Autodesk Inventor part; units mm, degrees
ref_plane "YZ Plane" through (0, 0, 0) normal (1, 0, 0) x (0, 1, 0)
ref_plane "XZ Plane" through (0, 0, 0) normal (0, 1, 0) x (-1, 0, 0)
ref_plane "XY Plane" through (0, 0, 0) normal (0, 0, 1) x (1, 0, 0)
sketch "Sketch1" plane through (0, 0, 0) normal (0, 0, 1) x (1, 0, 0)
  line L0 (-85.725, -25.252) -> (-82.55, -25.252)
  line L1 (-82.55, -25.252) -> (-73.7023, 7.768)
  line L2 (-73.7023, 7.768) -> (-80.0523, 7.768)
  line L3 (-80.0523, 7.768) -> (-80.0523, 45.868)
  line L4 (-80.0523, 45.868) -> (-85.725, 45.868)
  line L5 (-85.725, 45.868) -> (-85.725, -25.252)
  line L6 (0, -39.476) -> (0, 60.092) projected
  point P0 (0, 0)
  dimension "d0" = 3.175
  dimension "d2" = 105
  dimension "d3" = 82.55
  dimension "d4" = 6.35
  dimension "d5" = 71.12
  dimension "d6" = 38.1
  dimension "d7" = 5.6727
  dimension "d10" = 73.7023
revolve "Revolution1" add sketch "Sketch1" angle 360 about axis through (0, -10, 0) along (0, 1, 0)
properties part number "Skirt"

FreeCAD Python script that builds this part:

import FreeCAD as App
import Part
import Sketcher
from FreeCAD import Vector
Q = App.Units.Quantity


def add_polygon(sketch, points):
    """Adds a closed chain of lines whose ends are joined by coincident constraints."""
    first, n = sketch.GeometryCount, len(points)
    for a, b in zip(points, points[1:] + points[:1]):
        sketch.addGeometry(Part.LineSegment(App.Vector(*a, 0), App.Vector(*b, 0)), False)
    for i in range(n):
        sketch.addConstraint(Sketcher.Constraint("Coincident", first + i, 2, first + (i + 1) % n, 1))

doc = App.newDocument("Part")
body = doc.addObject("PartDesign::Body", "Body")

sketch1 = body.newObject("Sketcher::SketchObject", "Sketch")
sketch1.AttachmentSupport = (doc.getObject("XY_Plane"), [""])
sketch1.MapMode = "FlatFace"
add_polygon(sketch1, [(-85.7, 45.9), (-85.7, -25.3), (-82.5, -25.3), (-73.7, 7.8), (-80.1, 7.8), (-80.1, 45.9)])
sketch1.addConstraint(Sketcher.Constraint("Vertical", 0))
sketch1.addConstraint(Sketcher.Constraint("Horizontal", 1))
sketch1.addConstraint(Sketcher.Constraint("Horizontal", 3))
sketch1.addConstraint(Sketcher.Constraint("Vertical", 4))
sketch1.addConstraint(Sketcher.Constraint("Horizontal", 5))
sketch1.addConstraint(Sketcher.Constraint("DistanceY", 0, 2, 0, 1, Q("2.8 in")))
sketch1.addConstraint(Sketcher.Constraint("DistanceY", 4, 1, 4, 2, Q("1.5 in")))
sketch1.addConstraint(Sketcher.Constraint("DistanceX", 3, 2, 3, 1, Q("0.25 in")))
sketch1.addConstraint(Sketcher.Constraint("DistanceX", 1, 1, 1, 2, Q("0.125 in")))
sketch1.addConstraint(Sketcher.Constraint("DistanceX", 1, 2, -1, 1, Q("3.25 in")))
sketch1.addConstraint(Sketcher.Constraint("Angle", 2, Q("75 deg")))
sketch1.addConstraint(Sketcher.Constraint("DistanceY", 0, 2, -1, 1, 25.252))
revolution = body.newObject("PartDesign::Revolution", "Revolution")
revolution.Profile = sketch1
revolution.ReferenceAxis = (sketch1, ["V_Axis"])
revolution.Angle = 360

doc.recompute()
